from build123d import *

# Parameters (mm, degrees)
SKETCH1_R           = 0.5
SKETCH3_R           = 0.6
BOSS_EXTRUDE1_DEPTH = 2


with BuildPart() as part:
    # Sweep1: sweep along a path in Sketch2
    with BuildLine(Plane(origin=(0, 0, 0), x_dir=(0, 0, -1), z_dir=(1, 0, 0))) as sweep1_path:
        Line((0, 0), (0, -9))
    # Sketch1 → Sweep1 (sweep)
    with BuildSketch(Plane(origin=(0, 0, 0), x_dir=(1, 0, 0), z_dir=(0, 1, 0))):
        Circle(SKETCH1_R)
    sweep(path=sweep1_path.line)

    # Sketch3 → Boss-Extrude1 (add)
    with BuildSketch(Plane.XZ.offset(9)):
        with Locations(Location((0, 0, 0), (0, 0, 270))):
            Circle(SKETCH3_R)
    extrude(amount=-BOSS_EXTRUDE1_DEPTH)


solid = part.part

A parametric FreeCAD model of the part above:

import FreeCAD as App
import Part
import Sketcher
Q = App.Units.Quantity

doc = App.newDocument("Part")
body = doc.addObject("PartDesign::Body", "Body")

# Sketch on XZ plane
sketch1 = doc.addObject("Sketcher::SketchObject", "Sketch")
body.addObject(sketch1)
sketch1.AttachmentSupport = (doc.XZ_Plane, [""])
sketch1.MapMode = "FlatFace"
sketch1.addGeometry(Part.Circle(App.Vector(0, 0, 0), App.Vector(0, 0, 1), 0.5), False)
sketch1.addConstraint([
    Sketcher.Constraint("Coincident", 0, 3, -1, 1),
    Sketcher.Constraint("Diameter", 0, Q("1 mm")),
])

# Sketch on XY plane
sketch2 = doc.addObject("Sketcher::SketchObject", "Sketch001")
body.addObject(sketch2)
sketch2.AttachmentSupport = (doc.XY_Plane, [""])
sketch2.MapMode = "FlatFace"
sketch2.addGeometry(Part.LineSegment(App.Vector(0, 0, 0), App.Vector(0, -9, 0)), False)
sketch2.addConstraint([
    Sketcher.Constraint("Vertical", 0),
    Sketcher.Constraint("Coincident", 0, 1, -1, 1),
    Sketcher.Constraint("DistanceY", 0, 2, 0, 1, Q("9 mm")),
])
doc.recompute()

additivepipe = doc.addObject("PartDesign::AdditivePipe", "AdditivePipe")
body.addObject(additivepipe)
additivepipe.Profile = sketch1
additivepipe.Spine = (sketch2, ["Edge1"])

# Sketch on XZ plane
sketch3 = doc.addObject("Sketcher::SketchObject", "Sketch002")
body.addObject(sketch3)
sketch3.AttachmentSupport = (doc.XZ_Plane, [""])
sketch3.MapMode = "FlatFace"
sketch3.AttachmentOffset = App.Placement(App.Vector(0, 0, 9), App.Rotation())
sketch3.addGeometry(Part.Circle(App.Vector(0, 0, 0), App.Vector(0, 0, 1), 0.6), False)
sketch3.addConstraint([
    Sketcher.Constraint("Coincident", 0, 3, -1, 1),
    Sketcher.Constraint("Diameter", 0, Q("1.2 mm")),
])
pad1 = doc.addObject("PartDesign::Pad", "Pad")
body.addObject(pad1)
pad1.Profile = sketch3
pad1.Length = 2
pad1.Reversed = True

doc.recompute()
